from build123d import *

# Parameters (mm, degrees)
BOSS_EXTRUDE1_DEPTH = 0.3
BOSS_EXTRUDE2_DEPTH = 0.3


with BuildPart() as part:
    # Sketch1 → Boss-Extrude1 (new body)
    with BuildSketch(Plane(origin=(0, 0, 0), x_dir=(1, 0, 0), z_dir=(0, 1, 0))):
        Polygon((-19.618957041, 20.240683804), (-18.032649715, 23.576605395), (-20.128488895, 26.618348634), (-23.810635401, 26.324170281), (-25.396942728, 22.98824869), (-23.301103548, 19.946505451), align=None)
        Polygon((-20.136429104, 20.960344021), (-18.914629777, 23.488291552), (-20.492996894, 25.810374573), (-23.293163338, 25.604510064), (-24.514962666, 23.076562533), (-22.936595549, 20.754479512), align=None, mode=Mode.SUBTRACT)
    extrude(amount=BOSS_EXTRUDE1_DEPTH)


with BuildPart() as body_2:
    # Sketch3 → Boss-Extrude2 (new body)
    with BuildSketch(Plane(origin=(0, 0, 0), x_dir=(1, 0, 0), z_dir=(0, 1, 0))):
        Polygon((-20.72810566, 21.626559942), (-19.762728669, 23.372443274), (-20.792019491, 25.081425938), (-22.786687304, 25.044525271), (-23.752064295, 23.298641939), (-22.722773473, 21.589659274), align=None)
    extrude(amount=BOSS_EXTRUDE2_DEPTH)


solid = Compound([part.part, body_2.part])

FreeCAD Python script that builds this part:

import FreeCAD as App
import Part
import Sketcher
from FreeCAD import Vector
Q = App.Units.Quantity


def add_polygon(sketch, points):
    """Adds a closed chain of lines whose ends are joined by coincident constraints."""
    first, n = sketch.GeometryCount, len(points)
    for a, b in zip(points, points[1:] + points[:1]):
        sketch.addGeometry(Part.LineSegment(App.Vector(*a, 0), App.Vector(*b, 0)), False)
    for i in range(n):
        sketch.addConstraint(Sketcher.Constraint("Coincident", first + i, 2, first + (i + 1) % n, 1))

doc = App.newDocument("Part")
body = doc.addObject("PartDesign::Body", "Body")

# Sketch on XZ plane
sketch1 = body.newObject("Sketcher::SketchObject", "Sketch")
sketch1.AttachmentSupport = (doc.getObject("XZ_Plane"), [""])
sketch1.MapMode = "FlatFace"
add_polygon(sketch1, [(-19.6, -20.2), (-18, -23.6), (-20.1, -26.6), (-23.8, -26.3), (-25.4, -23), (-23.3, -19.9)])  # lines 0-5
add_polygon(sketch1, [(-18.9, -23.5), (-20.1, -21), (-22.9, -20.8), (-24.5, -23.1), (-23.3, -25.6), (-20.5, -25.8)])  # lines 6-11
sketch1.addConstraint(Sketcher.Constraint("Parallel", 0, 3))
sketch1.addConstraint(Sketcher.Constraint("Parallel", 1, 4))
sketch1.addConstraint(Sketcher.Constraint("Parallel", 2, 5))
sketch1.addConstraint(Sketcher.Constraint("Parallel", 6, 9))
sketch1.addConstraint(Sketcher.Constraint("Parallel", 7, 10))
sketch1.addConstraint(Sketcher.Constraint("Parallel", 8, 11))
sketch1.addConstraint(Sketcher.Constraint("Equal", 0, 1))
sketch1.addConstraint(Sketcher.Constraint("Equal", 1, 2))
sketch1.addConstraint(Sketcher.Constraint("Equal", 2, 3))
sketch1.addConstraint(Sketcher.Constraint("Equal", 6, 7))
sketch1.addConstraint(Sketcher.Constraint("Equal", 7, 8))
sketch1.addConstraint(Sketcher.Constraint("Equal", 8, 9))
sketch1.addConstraint(Sketcher.Constraint("DistanceY", 1, 2, 3, 2, Q("3.6301 mm")))
sketch1.addConstraint(Sketcher.Constraint("DistanceX", 8, 2, 9, 2, Q("1.221799 mm")))
sketch1.addConstraint(Sketcher.Constraint("Distance", 0, Q("3.693879 mm")))
sketch1.addConstraint(Sketcher.Constraint("DistanceX", 0, 2, -1, 1, Q("18.03265 mm")))
sketch1.addConstraint(Sketcher.Constraint("DistanceX", 1, 2, -1, 1, Q("20.128489 mm")))
sketch1.addConstraint(Sketcher.Constraint("DistanceY", 1, 2, -1, 1, Q("26.618349 mm")))
sketch1.addConstraint(Sketcher.Constraint("DistanceY", 2, 2, -1, 1, Q("26.32417 mm")))
sketch1.addConstraint(Sketcher.Constraint("DistanceX", 6, 2, -1, 1, Q("20.136429 mm")))
sketch1.addConstraint(Sketcher.Constraint("DistanceY", 7, 2, -1, 1, Q("20.75448 mm")))
sketch1.addConstraint(Sketcher.Constraint("DistanceY", 9, 2, -1, 1, Q("25.60451 mm")))
sketch1.addConstraint(Sketcher.Constraint("DistanceY", 11, 2, -1, 1, Q("23.488292 mm")))
sketch1.addConstraint(Sketcher.Constraint("DistanceY", 6, 2, 5, 2, Q("0.71966 mm")))
pad1 = body.newObject("PartDesign::Pad", "Pad")
pad1.Profile = sketch1
pad1.Length = 0.3
pad1.Reversed = True
body2 = doc.addObject("PartDesign::Body", "Body001")

# Sketch on XZ plane
sketch2 = body2.newObject("Sketcher::SketchObject", "Sketch001")
sketch2.AttachmentSupport = (doc.getObject("XZ_Plane001"), [""])
sketch2.MapMode = "FlatFace"
add_polygon(sketch2, [(-20.7, -21.6), (-19.8, -23.4), (-20.8, -25.1), (-22.8, -25), (-23.8, -23.3), (-22.7, -21.6)])  # lines 0-5
sketch2.addConstraint(Sketcher.Constraint("Parallel", 0, 3))
sketch2.addConstraint(Sketcher.Constraint("Parallel", 1, 4))
sketch2.addConstraint(Sketcher.Constraint("Parallel", 2, 5))
sketch2.addConstraint(Sketcher.Constraint("Equal", 0, 1))
sketch2.addConstraint(Sketcher.Constraint("Equal", 1, 2))
sketch2.addConstraint(Sketcher.Constraint("Equal", 2, 3))
sketch2.addConstraint(Sketcher.Constraint("DistanceY", 1, 2, 2, 2, Q("0.036901 mm")))
sketch2.addConstraint(Sketcher.Constraint("DistanceY", 0, 2, 3, 2, Q("0.073801 mm")))
sketch2.addConstraint(Sketcher.Constraint("Distance", 0, Q("1.995009 mm")))
sketch2.addConstraint(Sketcher.Constraint("DistanceX", 0, 2, -1, 1, Q("19.762729 mm")))
sketch2.addConstraint(Sketcher.Constraint("DistanceX", 1, 2, -1, 1, Q("20.792019 mm")))
sketch2.addConstraint(Sketcher.Constraint("DistanceY", 3, 2, -1, 1, Q("23.298642 mm")))
pad2 = body2.newObject("PartDesign::Pad", "Pad001")
pad2.Profile = sketch2
pad2.Length = 0.3
pad2.Reversed = True

doc.recompute()
